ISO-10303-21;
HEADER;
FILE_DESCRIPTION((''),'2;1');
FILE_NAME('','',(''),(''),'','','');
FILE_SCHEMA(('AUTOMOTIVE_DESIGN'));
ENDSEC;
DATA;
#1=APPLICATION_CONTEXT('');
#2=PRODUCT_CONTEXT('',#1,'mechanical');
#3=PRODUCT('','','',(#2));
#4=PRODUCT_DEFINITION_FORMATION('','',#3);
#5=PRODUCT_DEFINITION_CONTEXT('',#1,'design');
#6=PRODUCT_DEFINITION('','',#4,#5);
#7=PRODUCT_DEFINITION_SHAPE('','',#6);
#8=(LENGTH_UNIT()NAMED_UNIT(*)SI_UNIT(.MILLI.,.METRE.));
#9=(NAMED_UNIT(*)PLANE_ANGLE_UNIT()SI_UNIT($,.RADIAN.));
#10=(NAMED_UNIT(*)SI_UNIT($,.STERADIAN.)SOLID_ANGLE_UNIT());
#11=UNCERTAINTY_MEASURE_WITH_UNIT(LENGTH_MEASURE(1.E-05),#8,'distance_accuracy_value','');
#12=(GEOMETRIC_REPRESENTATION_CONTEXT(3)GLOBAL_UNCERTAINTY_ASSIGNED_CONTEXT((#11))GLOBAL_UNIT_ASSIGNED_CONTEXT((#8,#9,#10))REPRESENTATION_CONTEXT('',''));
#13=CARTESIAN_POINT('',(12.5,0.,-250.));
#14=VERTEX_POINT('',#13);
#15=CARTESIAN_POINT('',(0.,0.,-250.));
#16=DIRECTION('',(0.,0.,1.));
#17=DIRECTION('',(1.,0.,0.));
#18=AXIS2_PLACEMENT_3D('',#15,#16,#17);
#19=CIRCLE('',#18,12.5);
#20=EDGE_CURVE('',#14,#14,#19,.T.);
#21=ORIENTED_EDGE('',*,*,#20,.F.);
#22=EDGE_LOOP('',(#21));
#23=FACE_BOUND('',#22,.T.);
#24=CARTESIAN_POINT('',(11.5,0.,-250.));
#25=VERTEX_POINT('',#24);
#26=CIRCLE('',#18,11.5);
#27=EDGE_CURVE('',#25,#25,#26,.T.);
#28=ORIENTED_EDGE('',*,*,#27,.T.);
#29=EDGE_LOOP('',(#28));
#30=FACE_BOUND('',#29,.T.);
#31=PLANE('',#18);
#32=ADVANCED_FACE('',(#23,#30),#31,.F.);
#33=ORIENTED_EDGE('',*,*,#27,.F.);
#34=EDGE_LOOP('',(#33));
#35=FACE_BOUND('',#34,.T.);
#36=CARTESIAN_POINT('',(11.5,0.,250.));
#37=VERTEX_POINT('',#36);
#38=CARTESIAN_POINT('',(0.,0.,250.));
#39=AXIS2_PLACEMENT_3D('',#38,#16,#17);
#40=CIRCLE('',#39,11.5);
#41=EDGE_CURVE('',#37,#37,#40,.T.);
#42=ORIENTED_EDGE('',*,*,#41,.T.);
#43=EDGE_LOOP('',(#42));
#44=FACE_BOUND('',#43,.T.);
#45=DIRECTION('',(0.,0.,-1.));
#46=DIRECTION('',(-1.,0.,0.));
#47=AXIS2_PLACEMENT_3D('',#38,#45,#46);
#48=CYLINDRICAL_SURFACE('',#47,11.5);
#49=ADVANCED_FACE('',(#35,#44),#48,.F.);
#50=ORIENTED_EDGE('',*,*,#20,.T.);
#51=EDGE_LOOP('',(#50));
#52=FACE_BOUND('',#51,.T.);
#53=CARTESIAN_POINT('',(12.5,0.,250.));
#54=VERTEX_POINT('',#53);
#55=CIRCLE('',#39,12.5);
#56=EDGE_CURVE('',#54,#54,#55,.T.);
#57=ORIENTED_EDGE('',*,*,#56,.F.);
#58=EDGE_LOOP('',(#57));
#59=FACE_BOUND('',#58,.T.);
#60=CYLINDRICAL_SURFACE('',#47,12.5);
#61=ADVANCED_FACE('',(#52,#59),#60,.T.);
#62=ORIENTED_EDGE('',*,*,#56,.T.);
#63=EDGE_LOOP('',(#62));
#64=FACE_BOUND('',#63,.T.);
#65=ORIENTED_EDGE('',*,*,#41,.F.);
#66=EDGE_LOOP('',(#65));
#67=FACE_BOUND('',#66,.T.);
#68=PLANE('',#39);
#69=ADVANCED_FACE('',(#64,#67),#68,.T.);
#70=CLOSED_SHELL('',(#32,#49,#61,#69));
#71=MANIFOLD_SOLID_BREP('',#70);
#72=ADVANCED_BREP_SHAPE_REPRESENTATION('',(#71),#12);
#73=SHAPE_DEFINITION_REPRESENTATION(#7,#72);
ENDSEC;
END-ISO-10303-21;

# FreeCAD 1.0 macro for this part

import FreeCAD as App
import Part
import Sketcher
from FreeCAD import Vector
Q = App.Units.Quantity

doc = App.newDocument("Part")
params = doc.addObject("Spreadsheet::Sheet", "Params")
for row, (alias, value) in enumerate([
    ("sketch1_diameter", "25 mm"),
    ("sketch1_diameter2", "23 mm"),
    ("pad1_length", "500 mm"),
], start=1):
    params.set(f"A{row}", alias)
    params.set(f"B{row}", "=" + value)
    params.setAlias(f"B{row}", alias)

body = doc.addObject("PartDesign::Body", "Body")

# Sketch on XY plane
sketch1 = body.newObject("Sketcher::SketchObject", "Sketch")
sketch1.AttachmentSupport = (doc.getObject("XY_Plane"), [""])
sketch1.MapMode = "FlatFace"
sketch1.addGeometry([
    Part.Circle(Vector(0, 0, 0), Vector(0, 0, 1), 12.5),
    Part.Circle(Vector(0, 0, 0), Vector(0, 0, 1), 11.5),
], False)
sketch1.addConstraint([
    Sketcher.Constraint("Coincident", 0, 3, -1, 1),
    Sketcher.Constraint("Coincident", 1, 3, -1, 1),
    Sketcher.Constraint("Diameter", 0, Q("25 mm")),
    Sketcher.Constraint("Diameter", 1, Q("23 mm")),
])
sketch1.setExpression("Constraints[2]", "Params.sketch1_diameter")
sketch1.setExpression("Constraints[3]", "Params.sketch1_diameter2")
pad1 = body.newObject("PartDesign::Pad", "Pad")
pad1.Profile = sketch1
pad1.setExpression("Length", "Params.pad1_length")
pad1.Midplane = True

doc.recompute()
